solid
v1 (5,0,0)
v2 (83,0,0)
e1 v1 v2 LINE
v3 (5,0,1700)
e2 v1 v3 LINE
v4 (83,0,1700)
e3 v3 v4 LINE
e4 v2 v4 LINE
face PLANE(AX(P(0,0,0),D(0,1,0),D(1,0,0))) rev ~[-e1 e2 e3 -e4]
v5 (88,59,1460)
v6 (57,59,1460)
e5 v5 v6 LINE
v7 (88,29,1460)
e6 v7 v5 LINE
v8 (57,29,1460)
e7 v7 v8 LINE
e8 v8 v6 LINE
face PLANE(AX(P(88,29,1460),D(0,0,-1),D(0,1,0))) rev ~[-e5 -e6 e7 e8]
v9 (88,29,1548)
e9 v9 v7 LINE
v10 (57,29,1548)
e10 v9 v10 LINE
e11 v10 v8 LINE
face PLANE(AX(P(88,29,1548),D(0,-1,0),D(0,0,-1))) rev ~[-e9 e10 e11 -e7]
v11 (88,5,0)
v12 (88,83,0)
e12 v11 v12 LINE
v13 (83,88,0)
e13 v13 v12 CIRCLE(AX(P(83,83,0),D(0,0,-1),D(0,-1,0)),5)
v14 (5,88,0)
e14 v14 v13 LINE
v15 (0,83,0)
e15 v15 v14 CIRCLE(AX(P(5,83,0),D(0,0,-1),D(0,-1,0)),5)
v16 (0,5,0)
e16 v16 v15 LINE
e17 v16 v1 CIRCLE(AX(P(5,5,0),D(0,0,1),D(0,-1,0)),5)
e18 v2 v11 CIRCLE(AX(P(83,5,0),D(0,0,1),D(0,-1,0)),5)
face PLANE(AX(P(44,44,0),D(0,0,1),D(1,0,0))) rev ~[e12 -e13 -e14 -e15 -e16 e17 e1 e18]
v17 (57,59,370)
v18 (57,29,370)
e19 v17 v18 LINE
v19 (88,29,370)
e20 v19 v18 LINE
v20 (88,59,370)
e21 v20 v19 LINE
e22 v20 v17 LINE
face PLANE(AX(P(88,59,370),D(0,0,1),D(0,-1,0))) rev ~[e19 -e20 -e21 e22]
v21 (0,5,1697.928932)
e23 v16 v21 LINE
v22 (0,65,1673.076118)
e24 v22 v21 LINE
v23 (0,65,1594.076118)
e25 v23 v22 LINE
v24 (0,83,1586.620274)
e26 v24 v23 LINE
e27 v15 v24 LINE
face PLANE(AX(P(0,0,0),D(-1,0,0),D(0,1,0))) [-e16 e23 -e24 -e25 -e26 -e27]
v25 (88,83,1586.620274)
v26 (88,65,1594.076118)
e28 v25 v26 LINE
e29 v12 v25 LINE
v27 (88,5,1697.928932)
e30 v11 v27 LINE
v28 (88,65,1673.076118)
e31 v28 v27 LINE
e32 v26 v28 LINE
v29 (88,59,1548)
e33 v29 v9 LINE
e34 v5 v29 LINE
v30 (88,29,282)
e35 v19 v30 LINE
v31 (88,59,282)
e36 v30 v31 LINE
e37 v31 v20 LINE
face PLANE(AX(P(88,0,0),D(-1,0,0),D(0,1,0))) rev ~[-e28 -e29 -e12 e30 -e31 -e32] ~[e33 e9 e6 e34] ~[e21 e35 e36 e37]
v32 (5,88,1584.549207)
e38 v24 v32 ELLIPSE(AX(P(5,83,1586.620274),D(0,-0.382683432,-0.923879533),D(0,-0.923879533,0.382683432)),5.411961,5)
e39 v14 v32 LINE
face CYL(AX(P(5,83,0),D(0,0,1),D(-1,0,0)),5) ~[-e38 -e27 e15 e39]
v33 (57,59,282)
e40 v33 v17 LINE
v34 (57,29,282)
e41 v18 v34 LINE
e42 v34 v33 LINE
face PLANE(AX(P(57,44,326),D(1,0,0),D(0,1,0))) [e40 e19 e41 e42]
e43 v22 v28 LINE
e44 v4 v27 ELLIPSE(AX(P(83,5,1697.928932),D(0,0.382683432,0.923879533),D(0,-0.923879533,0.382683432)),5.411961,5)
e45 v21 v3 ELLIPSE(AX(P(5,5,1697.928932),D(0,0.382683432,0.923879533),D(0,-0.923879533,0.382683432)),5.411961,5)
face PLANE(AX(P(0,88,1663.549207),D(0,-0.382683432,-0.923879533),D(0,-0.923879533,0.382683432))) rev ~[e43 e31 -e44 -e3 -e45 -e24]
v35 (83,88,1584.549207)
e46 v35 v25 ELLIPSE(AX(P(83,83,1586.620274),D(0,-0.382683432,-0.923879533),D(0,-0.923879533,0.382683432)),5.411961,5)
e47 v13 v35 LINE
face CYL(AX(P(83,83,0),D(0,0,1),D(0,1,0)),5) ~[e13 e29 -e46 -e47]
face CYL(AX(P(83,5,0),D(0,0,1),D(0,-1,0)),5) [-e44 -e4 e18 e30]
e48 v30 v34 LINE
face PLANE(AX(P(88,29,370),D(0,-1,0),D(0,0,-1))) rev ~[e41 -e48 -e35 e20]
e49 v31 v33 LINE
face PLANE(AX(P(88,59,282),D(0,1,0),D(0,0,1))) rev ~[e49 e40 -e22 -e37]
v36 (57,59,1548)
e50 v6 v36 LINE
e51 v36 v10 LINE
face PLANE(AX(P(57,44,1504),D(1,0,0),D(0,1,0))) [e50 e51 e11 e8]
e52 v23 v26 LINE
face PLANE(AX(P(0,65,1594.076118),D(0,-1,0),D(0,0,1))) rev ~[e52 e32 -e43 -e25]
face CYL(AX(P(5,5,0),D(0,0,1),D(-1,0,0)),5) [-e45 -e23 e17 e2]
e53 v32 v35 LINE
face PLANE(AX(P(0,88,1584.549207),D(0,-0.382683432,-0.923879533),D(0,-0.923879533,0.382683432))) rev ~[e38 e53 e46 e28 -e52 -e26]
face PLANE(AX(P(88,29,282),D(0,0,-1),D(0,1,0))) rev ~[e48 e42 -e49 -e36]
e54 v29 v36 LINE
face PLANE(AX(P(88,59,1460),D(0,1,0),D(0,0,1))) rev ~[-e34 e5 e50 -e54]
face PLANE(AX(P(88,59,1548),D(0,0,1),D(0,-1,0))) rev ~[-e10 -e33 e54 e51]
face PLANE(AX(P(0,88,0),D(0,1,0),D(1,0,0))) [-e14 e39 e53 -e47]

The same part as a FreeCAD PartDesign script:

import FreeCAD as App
import Part
import Sketcher

V = App.Vector
Q = App.Units.Quantity


def edges_at(feature, points):
    """Names of the edges that pass closest to the given points."""
    edges = feature.Shape.Edges
    near = lambda p: min(range(len(edges)), key=lambda i: edges[i].distToShape(Part.Vertex(*p))[0])
    return sorted({f"Edge{near(p) + 1}" for p in points})

doc = App.newDocument("Part")
body = doc.addObject("PartDesign::Body", "Body")

sketch1 = body.newObject("Sketcher::SketchObject", "Sketch")
sketch1.AttachmentSupport = (doc.getObject("XY_Plane"), [""])
sketch1.MapMode = "FlatFace"
sketch1.addGeometry([
    Part.LineSegment(V(0, 88, 0), V(0, 0, 0)),
    Part.LineSegment(V(0, 0, 0), V(88, 0, 0)),
    Part.LineSegment(V(88, 0, 0), V(88, 88, 0)),
    Part.LineSegment(V(88, 88, 0), V(0, 88, 0)),
], False)
sketch1.addConstraint([
    Sketcher.Constraint("Coincident", 0, 2, 1, 1),
    Sketcher.Constraint("Coincident", 1, 2, 2, 1),
    Sketcher.Constraint("Coincident", 2, 2, 3, 1),
    Sketcher.Constraint("Coincident", 3, 2, 0, 1),
    Sketcher.Constraint("Vertical", 0),
    Sketcher.Constraint("Horizontal", 1),
    Sketcher.Constraint("Vertical", 2),
    Sketcher.Constraint("Horizontal", 3),
    Sketcher.Constraint("Coincident", 0, 2, -1, 1),
    Sketcher.Constraint("Equal", 3, 0),
    Sketcher.Constraint("DistanceX", 1, 1, 1, 2, 88.0),
])
pad1 = body.newObject("PartDesign::Pad", "Pad")
pad1.Profile = sketch1
pad1.Length = 1700

sketch2 = body.newObject("Sketcher::SketchObject", "Sketch001")
sketch2.AttachmentSupport = (doc.getObject("YZ_Plane"), [""])
sketch2.MapMode = "FlatFace"
sketch2.addGeometry([
    Part.LineSegment(V(88, 1664, 0), V(0, 1700, 0)),
    Part.LineSegment(V(0, 1700, 0), V(88, 1700, 0)),
    Part.LineSegment(V(88, 1700, 0), V(88, 1664, 0)),
], False)
sketch2.addConstraint([
    Sketcher.Constraint("Coincident", 0, 2, 1, 1),
    Sketcher.Constraint("Coincident", 1, 2, 2, 1),
    Sketcher.Constraint("Coincident", 2, 2, 0, 1),
    Sketcher.Constraint("Horizontal", 1),
    Sketcher.Constraint("Vertical", 2),
    Sketcher.Constraint("PointOnObject", 0, 2, -2),
    Sketcher.Constraint("DistanceX", 1, 1, 1, 2, 88.0),
    Sketcher.Constraint("DistanceY", -1, 1, 0, 2, 1700.0),
    Sketcher.Constraint("Angle", 0, Q("157.5 deg")),
])
pocket1 = body.newObject("PartDesign::Pocket", "Pocket")
pocket1.Profile = sketch2
pocket1.Type = "ThroughAll"
pocket1.Reversed = True

sketch3 = body.newObject("Sketcher::SketchObject", "Sketch002")
sketch3.AttachmentSupport = (doc.getObject("YZ_Plane"), [""])
sketch3.MapMode = "FlatFace"
sketch3.addGeometry([
    Part.LineSegment(V(65, 1594, 0), V(65, 1673, 0)),
    Part.LineSegment(V(65, 1673, 0), V(88, 1664, 0)),
    Part.LineSegment(V(88, 1664, 0), V(88, 1585, 0)),
    Part.LineSegment(V(88, 1585, 0), V(65, 1594, 0)),
], False)
sketch3.addConstraint([
    Sketcher.Constraint("Coincident", 0, 2, 1, 1),
    Sketcher.Constraint("Coincident", 1, 2, 2, 1),
    Sketcher.Constraint("Coincident", 2, 2, 3, 1),
    Sketcher.Constraint("Coincident", 3, 2, 0, 1),
    Sketcher.Constraint("Vertical", 0),
    Sketcher.Constraint("Vertical", 2),
    Sketcher.Constraint("Parallel", 1, 3),
    Sketcher.Constraint("DistanceY", 0, 1, 0, 2, 79.0),
    Sketcher.Constraint("DistanceX", -1, 1, 0, 2, 65.0),
    Sketcher.Constraint("DistanceX", -1, 1, 1, 2, 88.0),
    Sketcher.Constraint("Angle", 1, Q("-22.5 deg")),
    Sketcher.Constraint("DistanceY", -1, 1, 0, 2, 1673.076118),
])
pocket2 = body.newObject("PartDesign::Pocket", "Pocket001")
pocket2.Profile = sketch3
pocket2.Type = "ThroughAll"
pocket2.Reversed = True

sketch4 = body.newObject("Sketcher::SketchObject", "Sketch003")
sketch4.AttachmentSupport = (doc.getObject("YZ_Plane"), [""])
sketch4.MapMode = "FlatFace"
sketch4.AttachmentOffset = App.Placement(V(0, 0, 88), App.Rotation())
sketch4.addGeometry([
    Part.LineSegment(V(29, 282, 0), V(59, 282, 0)),
    Part.LineSegment(V(59, 282, 0), V(59, 370, 0)),
    Part.LineSegment(V(59, 370, 0), V(29, 370, 0)),
    Part.LineSegment(V(29, 370, 0), V(29, 282, 0)),
], False)
sketch4.addConstraint([
    Sketcher.Constraint("Coincident", 0, 2, 1, 1),
    Sketcher.Constraint("Coincident", 1, 2, 2, 1),
    Sketcher.Constraint("Coincident", 2, 2, 3, 1),
    Sketcher.Constraint("Coincident", 3, 2, 0, 1),
    Sketcher.Constraint("Horizontal", 0),
    Sketcher.Constraint("Vertical", 1),
    Sketcher.Constraint("Horizontal", 2),
    Sketcher.Constraint("Vertical", 3),
    Sketcher.Constraint("DistanceX", 0, 1, 0, 2, 30.0),
    Sketcher.Constraint("DistanceY", 1, 1, 1, 2, 88.0),
    Sketcher.Constraint("DistanceX", -1, 1, 0, 2, 59.0),
    Sketcher.Constraint("DistanceY", -1, 1, 0, 2, 282.0),
])
pocket3 = body.newObject("PartDesign::Pocket", "Pocket002")
pocket3.Profile = sketch4
pocket3.Length = 31

sketch5 = body.newObject("Sketcher::SketchObject", "Sketch004")
sketch5.AttachmentSupport = (doc.getObject("YZ_Plane"), [""])
sketch5.MapMode = "FlatFace"
sketch5.AttachmentOffset = App.Placement(V(0, 0, 88), App.Rotation())
sketch5.addGeometry([
    Part.LineSegment(V(29, 1460, 0), V(59, 1460, 0)),
    Part.LineSegment(V(59, 1460, 0), V(59, 1548, 0)),
    Part.LineSegment(V(59, 1548, 0), V(29, 1548, 0)),
    Part.LineSegment(V(29, 1548, 0), V(29, 1460, 0)),
], False)
sketch5.addConstraint([
    Sketcher.Constraint("Coincident", 0, 2, 1, 1),
    Sketcher.Constraint("Coincident", 1, 2, 2, 1),
    Sketcher.Constraint("Coincident", 2, 2, 3, 1),
    Sketcher.Constraint("Coincident", 3, 2, 0, 1),
    Sketcher.Constraint("Horizontal", 0),
    Sketcher.Constraint("Vertical", 1),
    Sketcher.Constraint("Horizontal", 2),
    Sketcher.Constraint("Vertical", 3),
    Sketcher.Constraint("DistanceX", 0, 1, 0, 2, 30.0),
    Sketcher.Constraint("DistanceY", 1, 1, 1, 2, 88.0),
    Sketcher.Constraint("DistanceX", -1, 1, 0, 2, 59.0),
    Sketcher.Constraint("DistanceY", -1, 1, 0, 2, 1460.0),
])
pocket4 = body.newObject("PartDesign::Pocket", "Pocket003")
pocket4.Profile = sketch5
pocket4.Length = 31
doc.recompute()

fillet = body.newObject("PartDesign::Fillet", "Fillet")
fillet.Base = (pocket4, edges_at(pocket4, [
    (88, 0, 850),
    (0, 0, 850),
    (88, 88, 792.275),
    (0, 88, 792.275),
]))
fillet.Radius = 5

doc.recompute()
